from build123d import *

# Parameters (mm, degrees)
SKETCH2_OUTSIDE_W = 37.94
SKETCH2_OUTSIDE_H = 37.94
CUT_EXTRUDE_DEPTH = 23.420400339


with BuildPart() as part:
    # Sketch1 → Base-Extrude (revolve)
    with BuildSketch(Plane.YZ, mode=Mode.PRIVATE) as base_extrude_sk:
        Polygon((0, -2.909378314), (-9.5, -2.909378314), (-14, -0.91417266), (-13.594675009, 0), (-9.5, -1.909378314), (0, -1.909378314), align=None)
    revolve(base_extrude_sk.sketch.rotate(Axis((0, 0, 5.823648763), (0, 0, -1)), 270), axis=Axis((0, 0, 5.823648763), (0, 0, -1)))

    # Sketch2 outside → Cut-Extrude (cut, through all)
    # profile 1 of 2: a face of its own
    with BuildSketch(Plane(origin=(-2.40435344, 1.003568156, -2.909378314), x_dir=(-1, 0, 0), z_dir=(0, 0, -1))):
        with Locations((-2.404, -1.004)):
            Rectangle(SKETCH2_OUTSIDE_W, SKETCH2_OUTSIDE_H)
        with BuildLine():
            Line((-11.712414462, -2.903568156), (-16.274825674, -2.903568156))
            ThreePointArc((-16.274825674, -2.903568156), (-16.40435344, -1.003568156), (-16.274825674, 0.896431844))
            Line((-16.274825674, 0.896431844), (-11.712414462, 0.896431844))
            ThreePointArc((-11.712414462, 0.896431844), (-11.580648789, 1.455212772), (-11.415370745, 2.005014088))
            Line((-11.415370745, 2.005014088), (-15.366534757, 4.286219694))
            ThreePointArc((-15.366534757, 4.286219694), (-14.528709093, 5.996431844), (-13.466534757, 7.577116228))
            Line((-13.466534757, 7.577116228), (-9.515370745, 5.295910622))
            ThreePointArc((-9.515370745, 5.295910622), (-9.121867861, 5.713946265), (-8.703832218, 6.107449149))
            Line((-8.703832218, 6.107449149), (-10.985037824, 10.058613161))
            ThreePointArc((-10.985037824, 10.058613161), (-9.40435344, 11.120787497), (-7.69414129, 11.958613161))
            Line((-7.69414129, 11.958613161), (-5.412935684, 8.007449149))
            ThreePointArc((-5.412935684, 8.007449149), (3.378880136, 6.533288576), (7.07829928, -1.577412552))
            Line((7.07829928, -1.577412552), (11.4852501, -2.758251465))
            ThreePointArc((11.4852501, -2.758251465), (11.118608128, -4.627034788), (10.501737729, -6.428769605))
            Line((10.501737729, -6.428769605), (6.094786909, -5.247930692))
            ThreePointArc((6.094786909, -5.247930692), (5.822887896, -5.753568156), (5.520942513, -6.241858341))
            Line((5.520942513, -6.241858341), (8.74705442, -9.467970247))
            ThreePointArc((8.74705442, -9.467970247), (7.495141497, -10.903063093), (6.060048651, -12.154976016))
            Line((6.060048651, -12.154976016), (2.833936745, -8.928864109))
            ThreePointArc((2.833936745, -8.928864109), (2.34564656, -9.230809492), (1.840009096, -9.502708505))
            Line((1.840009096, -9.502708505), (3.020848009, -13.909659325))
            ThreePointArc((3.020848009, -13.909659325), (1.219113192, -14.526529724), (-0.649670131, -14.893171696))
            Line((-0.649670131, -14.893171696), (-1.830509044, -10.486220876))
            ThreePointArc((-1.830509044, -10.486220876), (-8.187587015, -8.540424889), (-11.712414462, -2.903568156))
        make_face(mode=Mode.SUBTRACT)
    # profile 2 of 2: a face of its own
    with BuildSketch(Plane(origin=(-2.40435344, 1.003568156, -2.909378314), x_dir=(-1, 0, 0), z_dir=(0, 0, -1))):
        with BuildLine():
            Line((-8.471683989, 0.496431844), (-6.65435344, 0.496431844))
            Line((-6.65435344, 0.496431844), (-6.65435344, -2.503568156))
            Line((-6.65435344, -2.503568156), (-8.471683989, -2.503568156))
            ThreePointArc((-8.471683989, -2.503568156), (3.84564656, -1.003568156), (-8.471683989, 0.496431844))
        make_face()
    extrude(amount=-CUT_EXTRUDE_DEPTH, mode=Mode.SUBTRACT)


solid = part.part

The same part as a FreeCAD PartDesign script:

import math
import FreeCAD as App
import Part
import Sketcher

V = App.Vector
Q = App.Units.Quantity

doc = App.newDocument("Part")
body = doc.addObject("PartDesign::Body", "Body")

sketch1 = body.newObject("Sketcher::SketchObject", "Sketch")
sketch1.AttachmentSupport = (doc.getObject("YZ_Plane"), [""])
sketch1.MapMode = "FlatFace"
sketch1.addGeometry([
    Part.LineSegment(V(-9.5, -2.909378, 0), V(0, -2.909378, 0)),
    Part.LineSegment(V(0, -2.909378, 0), V(0, -1.909378, 0)),
    Part.LineSegment(V(0, -1.909378, 0), V(-9.5, -1.909378, 0)),
    Part.LineSegment(V(-9.5, -1.909378, 0), V(-13.594675, 0, 0)),
    Part.LineSegment(V(-13.594675, 0, 0), V(-14, -0.914173, 0)),
    Part.LineSegment(V(-14, -0.914173, 0), V(-9.5, -2.909378, 0)),
], False)
sketch1.addConstraint([
    Sketcher.Constraint("Coincident", 0, 2, 1, 1),
    Sketcher.Constraint("Coincident", 1, 2, 2, 1),
    Sketcher.Constraint("Coincident", 2, 2, 3, 1),
    Sketcher.Constraint("Coincident", 3, 2, 4, 1),
    Sketcher.Constraint("Coincident", 4, 2, 5, 1),
    Sketcher.Constraint("Coincident", 5, 2, 0, 1),
    Sketcher.Constraint("Horizontal", 0),
    Sketcher.Constraint("Vertical", 1),
    Sketcher.Constraint("Horizontal", 2),
    Sketcher.Constraint("PointOnObject", 0, 2, -2),
    Sketcher.Constraint("PointOnObject", 3, 2, -1),
    Sketcher.Constraint("Perpendicular", 4, 5),
    Sketcher.Constraint("Vertical", 2, 2, 5, 2),
    Sketcher.Constraint("DistanceY", 1, 1, 1, 2, Q("1 mm")),
    Sketcher.Constraint("Angle", 3, Q("155 deg")),
    Sketcher.Constraint("Distance", 4, Q("1 mm")),
    Sketcher.Constraint("DistanceX", 0, 1, 0, 2, Q("9.5 mm")),
    Sketcher.Constraint("DistanceX", 4, 2, -1, 1, Q("14 mm")),
])
revolution = body.newObject("PartDesign::Revolution", "Revolution")
revolution.Profile = sketch1
revolution.ReferenceAxis = (sketch1, ["V_Axis"])
revolution.Angle = 360

sketch2 = body.newObject("Sketcher::SketchObject", "Sketch001")
sketch2.AttachmentSupport = (doc.getObject("XY_Plane"), [""])
sketch2.MapMode = "FlatFace"
sketch2.AttachmentOffset = App.Placement(V(0, 0, -2.909378), App.Rotation())
sketch2.addGeometry([
    Part.LineSegment(V(18.969647, 18.969568, 0), V(18.969647, -18.970432, 0)),
    Part.LineSegment(V(18.969647, -18.970432, 0), V(-18.970353, -18.970432, 0)),
    Part.LineSegment(V(-18.970353, -18.970432, 0), V(-18.970353, 18.969568, 0)),
    Part.LineSegment(V(-18.970353, 18.969568, 0), V(18.969647, 18.969568, 0)),
    Part.ArcOfCircle(Part.Circle(V(0, 0, 0), V(0, 0, 1), 9.5), math.radians(-93.463041), math.radians(-11.536959)),
    Part.LineSegment(V(9.308061, -1.9, 0), V(13.870472, -1.9, 0)),
    Part.ArcOfCircle(Part.Circle(V(0, 0, 0), V(0, 0, 1), 14), math.radians(-7.799926), math.radians(7.799926)),
    Part.LineSegment(V(13.870472, 1.9, 0), V(9.308061, 1.9, 0)),
    Part.ArcOfCircle(Part.Circle(V(0, 0, 0), V(0, 0, 1), 9.5), math.radians(11.536959), math.radians(18.463041)),
    Part.LineSegment(V(9.011017, 3.008582, 0), V(12.962181, 5.289788, 0)),
    Part.ArcOfCircle(Part.Circle(V(0, 0, 0), V(0, 0, 1), 14), math.radians(22.200074), math.radians(37.799926)),
    Part.LineSegment(V(11.062181, 8.580684, 0), V(7.111017, 6.299479, 0)),
    Part.ArcOfCircle(Part.Circle(V(0, 0, 0), V(0, 0, 1), 9.5), math.radians(41.536959), math.radians(48.463041)),
    Part.LineSegment(V(6.299479, 7.111017, 0), V(8.580684, 11.062181, 0)),
    Part.ArcOfCircle(Part.Circle(V(0, 0, 0), V(0, 0, 1), 14), math.radians(52.200074), math.radians(67.799926)),
    Part.LineSegment(V(5.289788, 12.962181, 0), V(3.008582, 9.011017, 0)),
    Part.ArcOfCircle(Part.Circle(V(0, 0, 0), V(0, 0, 1), 9.5), math.radians(71.536959), math.radians(183.463041)),
    Part.LineSegment(V(-9.482653, -0.573844, 0), V(-13.889604, -1.754683, 0)),
    Part.ArcOfCircle(Part.Circle(V(0, 0, 0), V(0, 0, 1), 14), math.radians(-172.799926), math.radians(-157.200074)),
    Part.LineSegment(V(-12.906091, -5.425201, 0), V(-8.49914, -4.244363, 0)),
    Part.ArcOfCircle(Part.Circle(V(0, 0, 0), V(0, 0, 1), 9.5), math.radians(-153.463041), math.radians(-146.536959)),
    Part.LineSegment(V(-7.925296, -5.23829, 0), V(-11.151408, -8.464402, 0)),
    Part.ArcOfCircle(Part.Circle(V(0, 0, 0), V(0, 0, 1), 14), math.radians(-142.799926), math.radians(-127.200074)),
    Part.LineSegment(V(-8.464402, -11.151408, 0), V(-5.23829, -7.925296, 0)),
    Part.ArcOfCircle(Part.Circle(V(0, 0, 0), V(0, 0, 1), 9.5), math.radians(-123.463041), math.radians(-116.536959)),
    Part.LineSegment(V(-4.244363, -8.49914, 0), V(-5.425201, -12.906091, 0)),
    Part.ArcOfCircle(Part.Circle(V(0, 0, 0), V(0, 0, 1), 14), math.radians(-112.799926), math.radians(-97.200074)),
    Part.LineSegment(V(-1.754683, -13.889604, 0), V(-0.573844, -9.482653, 0)),
    Part.LineSegment(V(6.067331, 1.5, 0), V(4.25, 1.5, 0)),
    Part.LineSegment(V(4.25, 1.5, 0), V(4.25, -1.5, 0)),
    Part.LineSegment(V(4.25, -1.5, 0), V(6.067331, -1.5, 0)),
    Part.ArcOfCircle(Part.Circle(V(0, 0, 0), V(0, 0, 1), 6.25), math.radians(13.88654), math.radians(346.11346)),
], False)
sketch2.addConstraint([
    Sketcher.Constraint("Coincident", 0, 2, 1, 1),
    Sketcher.Constraint("Coincident", 1, 2, 2, 1),
    Sketcher.Constraint("Coincident", 2, 2, 3, 1),
    Sketcher.Constraint("Coincident", 3, 2, 0, 1),
    Sketcher.Constraint("Coincident", 4, 2, 5, 1),
    Sketcher.Constraint("Coincident", 5, 2, 6, 1),
    Sketcher.Constraint("Coincident", 6, 2, 7, 1),
    Sketcher.Constraint("Coincident", 7, 2, 8, 1),
    Sketcher.Constraint("Coincident", 8, 2, 9, 1),
    Sketcher.Constraint("Coincident", 9, 2, 10, 1),
    Sketcher.Constraint("Coincident", 10, 2, 11, 1),
    Sketcher.Constraint("Coincident", 11, 2, 12, 1),
    Sketcher.Constraint("Coincident", 12, 2, 13, 1),
    Sketcher.Constraint("Coincident", 13, 2, 14, 1),
    Sketcher.Constraint("Coincident", 14, 2, 15, 1),
    Sketcher.Constraint("Coincident", 15, 2, 16, 1),
    Sketcher.Constraint("Coincident", 16, 2, 17, 1),
    Sketcher.Constraint("Coincident", 17, 2, 18, 1),
    Sketcher.Constraint("Coincident", 18, 2, 19, 1),
    Sketcher.Constraint("Coincident", 19, 2, 20, 1),
    Sketcher.Constraint("Coincident", 20, 2, 21, 1),
    Sketcher.Constraint("Coincident", 21, 2, 22, 1),
    Sketcher.Constraint("Coincident", 22, 2, 23, 1),
    Sketcher.Constraint("Coincident", 23, 2, 24, 1),
    Sketcher.Constraint("Coincident", 24, 2, 25, 1),
    Sketcher.Constraint("Coincident", 25, 2, 26, 1),
    Sketcher.Constraint("Coincident", 26, 2, 27, 1),
    Sketcher.Constraint("Coincident", 27, 2, 4, 1),
    Sketcher.Constraint("Coincident", 28, 2, 29, 1),
    Sketcher.Constraint("Coincident", 29, 2, 30, 1),
    Sketcher.Constraint("Coincident", 30, 2, 31, 2),
    Sketcher.Constraint("Coincident", 31, 1, 28, 1),
    Sketcher.Constraint("Vertical", 0),
    Sketcher.Constraint("Horizontal", 1),
    Sketcher.Constraint("Vertical", 2),
    Sketcher.Constraint("Horizontal", 3),
    Sketcher.Constraint("Horizontal", 5),
    Sketcher.Constraint("Horizontal", 7),
    Sketcher.Constraint("Horizontal", 28),
    Sketcher.Constraint("Vertical", 29),
    Sketcher.Constraint("Horizontal", 30),
    Sketcher.Constraint("Coincident", 4, 3, -1, 1),
    Sketcher.Constraint("Coincident", 6, 3, -1, 1),
    Sketcher.Constraint("Coincident", 8, 3, -1, 1),
    Sketcher.Constraint("Coincident", 10, 3, -1, 1),
    Sketcher.Constraint("Coincident", 12, 3, -1, 1),
    Sketcher.Constraint("Coincident", 14, 3, -1, 1),
    Sketcher.Constraint("Coincident", 16, 3, -1, 1),
    Sketcher.Constraint("Coincident", 18, 3, -1, 1),
    Sketcher.Constraint("Coincident", 20, 3, -1, 1),
    Sketcher.Constraint("Coincident", 22, 3, -1, 1),
    Sketcher.Constraint("Coincident", 24, 3, -1, 1),
    Sketcher.Constraint("Coincident", 26, 3, -1, 1),
    Sketcher.Constraint("Coincident", 31, 3, -1, 1),
    Sketcher.Constraint("Equal", 4, 8),
    Sketcher.Constraint("Equal", 6, 10),
    Sketcher.Constraint("Equal", 8, 12),
    Sketcher.Constraint("Equal", 10, 14),
    Sketcher.Constraint("Equal", 12, 16),
    Sketcher.Constraint("Equal", 14, 18),
    Sketcher.Constraint("Equal", 16, 20),
    Sketcher.Constraint("Equal", 18, 22),
    Sketcher.Constraint("Equal", 20, 24),
    Sketcher.Constraint("Equal", 22, 26),
    Sketcher.Constraint("Parallel", 9, 11),
    Sketcher.Constraint("Parallel", 13, 15),
    Sketcher.Constraint("Parallel", 17, 19),
    Sketcher.Constraint("Parallel", 21, 23),
    Sketcher.Constraint("Parallel", 25, 27),
    Sketcher.Constraint("Vertical", 5, 2, 6, 2),
    Sketcher.Constraint("Vertical", 30, 2, 31, 1),
    Sketcher.Constraint("Equal", 3, 0),
    Sketcher.Constraint("Equal", 9, 11),
    Sketcher.Constraint("Equal", 11, 13),
    Sketcher.Constraint("Equal", 13, 15),
    Sketcher.Constraint("Equal", 15, 17),
    Sketcher.Constraint("Equal", 17, 19),
    Sketcher.Constraint("Equal", 19, 21),
    Sketcher.Constraint("Equal", 21, 23),
    Sketcher.Constraint("Equal", 23, 25),
    Sketcher.Constraint("Equal", 25, 27),
    Sketcher.Constraint("Radius", 6, Q("14 mm")),
    Sketcher.Constraint("Radius", 4, Q("9.5 mm")),
    Sketcher.Constraint("DistanceY", 29, 2, 29, 1, Q("3 mm")),
    Sketcher.Constraint("Angle", 9, Q("30 deg")),
    Sketcher.Constraint("Angle", 13, Q("60 deg")),
    Sketcher.Constraint("Angle", 17, Q("-165 deg")),
    Sketcher.Constraint("Angle", 21, Q("-135 deg")),
    Sketcher.Constraint("Angle", 25, Q("-105 deg")),
    Sketcher.Constraint("Radius", 31, Q("6.25 mm")),
    Sketcher.Constraint("DistanceX", 1, 2, 1, 1, Q("37.94 mm")),
    Sketcher.Constraint("DistanceY", 4, 2, -1, 1, Q("1.9 mm")),
    Sketcher.Constraint("DistanceX", 10, 2, 9, 2, Q("1.9 mm")),
    Sketcher.Constraint("DistanceX", -1, 1, 28, 2, Q("4.25 mm")),
    Sketcher.Constraint("DistanceY", 0, 2, -1, 1, Q("18.970432 mm")),
    Sketcher.Constraint("DistanceX", -1, 1, 0, 2, Q("18.969647 mm")),
])
pocket1 = body.newObject("PartDesign::Pocket", "Pocket")
pocket1.Profile = sketch2
pocket1.Length = 23.4204
pocket1.Reversed = True

doc.recompute()
